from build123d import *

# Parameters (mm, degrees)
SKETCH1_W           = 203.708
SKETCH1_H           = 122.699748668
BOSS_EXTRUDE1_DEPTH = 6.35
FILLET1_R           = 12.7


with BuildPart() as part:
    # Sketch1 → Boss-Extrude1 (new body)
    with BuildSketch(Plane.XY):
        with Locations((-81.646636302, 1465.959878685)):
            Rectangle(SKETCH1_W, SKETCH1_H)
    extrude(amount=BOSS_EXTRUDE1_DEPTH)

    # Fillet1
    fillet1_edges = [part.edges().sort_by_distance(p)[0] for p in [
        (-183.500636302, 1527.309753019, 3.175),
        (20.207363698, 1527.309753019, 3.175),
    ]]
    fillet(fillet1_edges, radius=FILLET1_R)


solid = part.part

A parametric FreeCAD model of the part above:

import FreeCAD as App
import Part
import Sketcher

V = App.Vector
Q = App.Units.Quantity


def edges_at(feature, points):
    """Names of the edges that pass closest to the given points."""
    edges = feature.Shape.Edges
    near = lambda p: min(range(len(edges)), key=lambda i: edges[i].distToShape(Part.Vertex(*p))[0])
    return sorted({f"Edge{near(p) + 1}" for p in points})

doc = App.newDocument("Part")
params = doc.addObject("Spreadsheet::Sheet", "Params")
for row, (alias, value) in enumerate([
    ("sketch1_width", "8.02 in"),
    ("pad1_length", "0.25 in"),
    ("fillet_radius", "0.5 in"),
], start=1):
    params.set(f"A{row}", alias)
    params.set(f"B{row}", "=" + value)
    params.setAlias(f"B{row}", alias)

body = doc.addObject("PartDesign::Body", "Body")

# Sketch on XY plane
sketch1 = body.newObject("Sketcher::SketchObject", "Sketch")
sketch1.AttachmentSupport = (doc.getObject("XY_Plane"), [""])
sketch1.MapMode = "FlatFace"
sketch1.addGeometry(Part.LineSegment(V(-184, 1527, 0), V(-184, 1405, 0)), False)
sketch1.addGeometry(Part.LineSegment(V(-184, 1405, 0), V(20, 1405, 0)), False)
sketch1.addGeometry(Part.LineSegment(V(20, 1405, 0), V(20, 1527, 0)), False)
sketch1.addGeometry(Part.LineSegment(V(20, 1527, 0), V(-184, 1527, 0)), False)
sketch1.addConstraint(Sketcher.Constraint("Coincident", 0, 2, 1, 1))
sketch1.addConstraint(Sketcher.Constraint("Coincident", 1, 2, 2, 1))
sketch1.addConstraint(Sketcher.Constraint("Coincident", 2, 2, 3, 1))
sketch1.addConstraint(Sketcher.Constraint("Coincident", 3, 2, 0, 1))
sketch1.addConstraint(Sketcher.Constraint("Vertical", 0))
sketch1.addConstraint(Sketcher.Constraint("Horizontal", 1))
sketch1.addConstraint(Sketcher.Constraint("Vertical", 2))
sketch1.addConstraint(Sketcher.Constraint("Horizontal", 3))
sketch1.addConstraint(Sketcher.Constraint("DistanceX", 1, 1, 1, 2, Q("8.02 in")))
sketch1.addConstraint(Sketcher.Constraint("DistanceY", 0, 2, 0, 1, 122.699749))
sketch1.addConstraint(Sketcher.Constraint("DistanceX", 0, 2, -1, 1, 183.500636))
sketch1.addConstraint(Sketcher.Constraint("DistanceY", -1, 1, 0, 2, 1404.610004))
sketch1.setExpression("Constraints[8]", "Params.sketch1_width")
pad1 = body.newObject("PartDesign::Pad", "Pad")
pad1.Profile = sketch1
pad1.setExpression("Length", "Params.pad1_length")
doc.recompute()

fillet = body.newObject("PartDesign::Fillet", "Fillet")
fillet.Base = (pad1, edges_at(pad1, [(-183.501, 1527.31, 3.175), (20.207, 1527.31, 3.175)]))
fillet.setExpression("Radius", "Params.fillet_radius")

doc.recompute()
